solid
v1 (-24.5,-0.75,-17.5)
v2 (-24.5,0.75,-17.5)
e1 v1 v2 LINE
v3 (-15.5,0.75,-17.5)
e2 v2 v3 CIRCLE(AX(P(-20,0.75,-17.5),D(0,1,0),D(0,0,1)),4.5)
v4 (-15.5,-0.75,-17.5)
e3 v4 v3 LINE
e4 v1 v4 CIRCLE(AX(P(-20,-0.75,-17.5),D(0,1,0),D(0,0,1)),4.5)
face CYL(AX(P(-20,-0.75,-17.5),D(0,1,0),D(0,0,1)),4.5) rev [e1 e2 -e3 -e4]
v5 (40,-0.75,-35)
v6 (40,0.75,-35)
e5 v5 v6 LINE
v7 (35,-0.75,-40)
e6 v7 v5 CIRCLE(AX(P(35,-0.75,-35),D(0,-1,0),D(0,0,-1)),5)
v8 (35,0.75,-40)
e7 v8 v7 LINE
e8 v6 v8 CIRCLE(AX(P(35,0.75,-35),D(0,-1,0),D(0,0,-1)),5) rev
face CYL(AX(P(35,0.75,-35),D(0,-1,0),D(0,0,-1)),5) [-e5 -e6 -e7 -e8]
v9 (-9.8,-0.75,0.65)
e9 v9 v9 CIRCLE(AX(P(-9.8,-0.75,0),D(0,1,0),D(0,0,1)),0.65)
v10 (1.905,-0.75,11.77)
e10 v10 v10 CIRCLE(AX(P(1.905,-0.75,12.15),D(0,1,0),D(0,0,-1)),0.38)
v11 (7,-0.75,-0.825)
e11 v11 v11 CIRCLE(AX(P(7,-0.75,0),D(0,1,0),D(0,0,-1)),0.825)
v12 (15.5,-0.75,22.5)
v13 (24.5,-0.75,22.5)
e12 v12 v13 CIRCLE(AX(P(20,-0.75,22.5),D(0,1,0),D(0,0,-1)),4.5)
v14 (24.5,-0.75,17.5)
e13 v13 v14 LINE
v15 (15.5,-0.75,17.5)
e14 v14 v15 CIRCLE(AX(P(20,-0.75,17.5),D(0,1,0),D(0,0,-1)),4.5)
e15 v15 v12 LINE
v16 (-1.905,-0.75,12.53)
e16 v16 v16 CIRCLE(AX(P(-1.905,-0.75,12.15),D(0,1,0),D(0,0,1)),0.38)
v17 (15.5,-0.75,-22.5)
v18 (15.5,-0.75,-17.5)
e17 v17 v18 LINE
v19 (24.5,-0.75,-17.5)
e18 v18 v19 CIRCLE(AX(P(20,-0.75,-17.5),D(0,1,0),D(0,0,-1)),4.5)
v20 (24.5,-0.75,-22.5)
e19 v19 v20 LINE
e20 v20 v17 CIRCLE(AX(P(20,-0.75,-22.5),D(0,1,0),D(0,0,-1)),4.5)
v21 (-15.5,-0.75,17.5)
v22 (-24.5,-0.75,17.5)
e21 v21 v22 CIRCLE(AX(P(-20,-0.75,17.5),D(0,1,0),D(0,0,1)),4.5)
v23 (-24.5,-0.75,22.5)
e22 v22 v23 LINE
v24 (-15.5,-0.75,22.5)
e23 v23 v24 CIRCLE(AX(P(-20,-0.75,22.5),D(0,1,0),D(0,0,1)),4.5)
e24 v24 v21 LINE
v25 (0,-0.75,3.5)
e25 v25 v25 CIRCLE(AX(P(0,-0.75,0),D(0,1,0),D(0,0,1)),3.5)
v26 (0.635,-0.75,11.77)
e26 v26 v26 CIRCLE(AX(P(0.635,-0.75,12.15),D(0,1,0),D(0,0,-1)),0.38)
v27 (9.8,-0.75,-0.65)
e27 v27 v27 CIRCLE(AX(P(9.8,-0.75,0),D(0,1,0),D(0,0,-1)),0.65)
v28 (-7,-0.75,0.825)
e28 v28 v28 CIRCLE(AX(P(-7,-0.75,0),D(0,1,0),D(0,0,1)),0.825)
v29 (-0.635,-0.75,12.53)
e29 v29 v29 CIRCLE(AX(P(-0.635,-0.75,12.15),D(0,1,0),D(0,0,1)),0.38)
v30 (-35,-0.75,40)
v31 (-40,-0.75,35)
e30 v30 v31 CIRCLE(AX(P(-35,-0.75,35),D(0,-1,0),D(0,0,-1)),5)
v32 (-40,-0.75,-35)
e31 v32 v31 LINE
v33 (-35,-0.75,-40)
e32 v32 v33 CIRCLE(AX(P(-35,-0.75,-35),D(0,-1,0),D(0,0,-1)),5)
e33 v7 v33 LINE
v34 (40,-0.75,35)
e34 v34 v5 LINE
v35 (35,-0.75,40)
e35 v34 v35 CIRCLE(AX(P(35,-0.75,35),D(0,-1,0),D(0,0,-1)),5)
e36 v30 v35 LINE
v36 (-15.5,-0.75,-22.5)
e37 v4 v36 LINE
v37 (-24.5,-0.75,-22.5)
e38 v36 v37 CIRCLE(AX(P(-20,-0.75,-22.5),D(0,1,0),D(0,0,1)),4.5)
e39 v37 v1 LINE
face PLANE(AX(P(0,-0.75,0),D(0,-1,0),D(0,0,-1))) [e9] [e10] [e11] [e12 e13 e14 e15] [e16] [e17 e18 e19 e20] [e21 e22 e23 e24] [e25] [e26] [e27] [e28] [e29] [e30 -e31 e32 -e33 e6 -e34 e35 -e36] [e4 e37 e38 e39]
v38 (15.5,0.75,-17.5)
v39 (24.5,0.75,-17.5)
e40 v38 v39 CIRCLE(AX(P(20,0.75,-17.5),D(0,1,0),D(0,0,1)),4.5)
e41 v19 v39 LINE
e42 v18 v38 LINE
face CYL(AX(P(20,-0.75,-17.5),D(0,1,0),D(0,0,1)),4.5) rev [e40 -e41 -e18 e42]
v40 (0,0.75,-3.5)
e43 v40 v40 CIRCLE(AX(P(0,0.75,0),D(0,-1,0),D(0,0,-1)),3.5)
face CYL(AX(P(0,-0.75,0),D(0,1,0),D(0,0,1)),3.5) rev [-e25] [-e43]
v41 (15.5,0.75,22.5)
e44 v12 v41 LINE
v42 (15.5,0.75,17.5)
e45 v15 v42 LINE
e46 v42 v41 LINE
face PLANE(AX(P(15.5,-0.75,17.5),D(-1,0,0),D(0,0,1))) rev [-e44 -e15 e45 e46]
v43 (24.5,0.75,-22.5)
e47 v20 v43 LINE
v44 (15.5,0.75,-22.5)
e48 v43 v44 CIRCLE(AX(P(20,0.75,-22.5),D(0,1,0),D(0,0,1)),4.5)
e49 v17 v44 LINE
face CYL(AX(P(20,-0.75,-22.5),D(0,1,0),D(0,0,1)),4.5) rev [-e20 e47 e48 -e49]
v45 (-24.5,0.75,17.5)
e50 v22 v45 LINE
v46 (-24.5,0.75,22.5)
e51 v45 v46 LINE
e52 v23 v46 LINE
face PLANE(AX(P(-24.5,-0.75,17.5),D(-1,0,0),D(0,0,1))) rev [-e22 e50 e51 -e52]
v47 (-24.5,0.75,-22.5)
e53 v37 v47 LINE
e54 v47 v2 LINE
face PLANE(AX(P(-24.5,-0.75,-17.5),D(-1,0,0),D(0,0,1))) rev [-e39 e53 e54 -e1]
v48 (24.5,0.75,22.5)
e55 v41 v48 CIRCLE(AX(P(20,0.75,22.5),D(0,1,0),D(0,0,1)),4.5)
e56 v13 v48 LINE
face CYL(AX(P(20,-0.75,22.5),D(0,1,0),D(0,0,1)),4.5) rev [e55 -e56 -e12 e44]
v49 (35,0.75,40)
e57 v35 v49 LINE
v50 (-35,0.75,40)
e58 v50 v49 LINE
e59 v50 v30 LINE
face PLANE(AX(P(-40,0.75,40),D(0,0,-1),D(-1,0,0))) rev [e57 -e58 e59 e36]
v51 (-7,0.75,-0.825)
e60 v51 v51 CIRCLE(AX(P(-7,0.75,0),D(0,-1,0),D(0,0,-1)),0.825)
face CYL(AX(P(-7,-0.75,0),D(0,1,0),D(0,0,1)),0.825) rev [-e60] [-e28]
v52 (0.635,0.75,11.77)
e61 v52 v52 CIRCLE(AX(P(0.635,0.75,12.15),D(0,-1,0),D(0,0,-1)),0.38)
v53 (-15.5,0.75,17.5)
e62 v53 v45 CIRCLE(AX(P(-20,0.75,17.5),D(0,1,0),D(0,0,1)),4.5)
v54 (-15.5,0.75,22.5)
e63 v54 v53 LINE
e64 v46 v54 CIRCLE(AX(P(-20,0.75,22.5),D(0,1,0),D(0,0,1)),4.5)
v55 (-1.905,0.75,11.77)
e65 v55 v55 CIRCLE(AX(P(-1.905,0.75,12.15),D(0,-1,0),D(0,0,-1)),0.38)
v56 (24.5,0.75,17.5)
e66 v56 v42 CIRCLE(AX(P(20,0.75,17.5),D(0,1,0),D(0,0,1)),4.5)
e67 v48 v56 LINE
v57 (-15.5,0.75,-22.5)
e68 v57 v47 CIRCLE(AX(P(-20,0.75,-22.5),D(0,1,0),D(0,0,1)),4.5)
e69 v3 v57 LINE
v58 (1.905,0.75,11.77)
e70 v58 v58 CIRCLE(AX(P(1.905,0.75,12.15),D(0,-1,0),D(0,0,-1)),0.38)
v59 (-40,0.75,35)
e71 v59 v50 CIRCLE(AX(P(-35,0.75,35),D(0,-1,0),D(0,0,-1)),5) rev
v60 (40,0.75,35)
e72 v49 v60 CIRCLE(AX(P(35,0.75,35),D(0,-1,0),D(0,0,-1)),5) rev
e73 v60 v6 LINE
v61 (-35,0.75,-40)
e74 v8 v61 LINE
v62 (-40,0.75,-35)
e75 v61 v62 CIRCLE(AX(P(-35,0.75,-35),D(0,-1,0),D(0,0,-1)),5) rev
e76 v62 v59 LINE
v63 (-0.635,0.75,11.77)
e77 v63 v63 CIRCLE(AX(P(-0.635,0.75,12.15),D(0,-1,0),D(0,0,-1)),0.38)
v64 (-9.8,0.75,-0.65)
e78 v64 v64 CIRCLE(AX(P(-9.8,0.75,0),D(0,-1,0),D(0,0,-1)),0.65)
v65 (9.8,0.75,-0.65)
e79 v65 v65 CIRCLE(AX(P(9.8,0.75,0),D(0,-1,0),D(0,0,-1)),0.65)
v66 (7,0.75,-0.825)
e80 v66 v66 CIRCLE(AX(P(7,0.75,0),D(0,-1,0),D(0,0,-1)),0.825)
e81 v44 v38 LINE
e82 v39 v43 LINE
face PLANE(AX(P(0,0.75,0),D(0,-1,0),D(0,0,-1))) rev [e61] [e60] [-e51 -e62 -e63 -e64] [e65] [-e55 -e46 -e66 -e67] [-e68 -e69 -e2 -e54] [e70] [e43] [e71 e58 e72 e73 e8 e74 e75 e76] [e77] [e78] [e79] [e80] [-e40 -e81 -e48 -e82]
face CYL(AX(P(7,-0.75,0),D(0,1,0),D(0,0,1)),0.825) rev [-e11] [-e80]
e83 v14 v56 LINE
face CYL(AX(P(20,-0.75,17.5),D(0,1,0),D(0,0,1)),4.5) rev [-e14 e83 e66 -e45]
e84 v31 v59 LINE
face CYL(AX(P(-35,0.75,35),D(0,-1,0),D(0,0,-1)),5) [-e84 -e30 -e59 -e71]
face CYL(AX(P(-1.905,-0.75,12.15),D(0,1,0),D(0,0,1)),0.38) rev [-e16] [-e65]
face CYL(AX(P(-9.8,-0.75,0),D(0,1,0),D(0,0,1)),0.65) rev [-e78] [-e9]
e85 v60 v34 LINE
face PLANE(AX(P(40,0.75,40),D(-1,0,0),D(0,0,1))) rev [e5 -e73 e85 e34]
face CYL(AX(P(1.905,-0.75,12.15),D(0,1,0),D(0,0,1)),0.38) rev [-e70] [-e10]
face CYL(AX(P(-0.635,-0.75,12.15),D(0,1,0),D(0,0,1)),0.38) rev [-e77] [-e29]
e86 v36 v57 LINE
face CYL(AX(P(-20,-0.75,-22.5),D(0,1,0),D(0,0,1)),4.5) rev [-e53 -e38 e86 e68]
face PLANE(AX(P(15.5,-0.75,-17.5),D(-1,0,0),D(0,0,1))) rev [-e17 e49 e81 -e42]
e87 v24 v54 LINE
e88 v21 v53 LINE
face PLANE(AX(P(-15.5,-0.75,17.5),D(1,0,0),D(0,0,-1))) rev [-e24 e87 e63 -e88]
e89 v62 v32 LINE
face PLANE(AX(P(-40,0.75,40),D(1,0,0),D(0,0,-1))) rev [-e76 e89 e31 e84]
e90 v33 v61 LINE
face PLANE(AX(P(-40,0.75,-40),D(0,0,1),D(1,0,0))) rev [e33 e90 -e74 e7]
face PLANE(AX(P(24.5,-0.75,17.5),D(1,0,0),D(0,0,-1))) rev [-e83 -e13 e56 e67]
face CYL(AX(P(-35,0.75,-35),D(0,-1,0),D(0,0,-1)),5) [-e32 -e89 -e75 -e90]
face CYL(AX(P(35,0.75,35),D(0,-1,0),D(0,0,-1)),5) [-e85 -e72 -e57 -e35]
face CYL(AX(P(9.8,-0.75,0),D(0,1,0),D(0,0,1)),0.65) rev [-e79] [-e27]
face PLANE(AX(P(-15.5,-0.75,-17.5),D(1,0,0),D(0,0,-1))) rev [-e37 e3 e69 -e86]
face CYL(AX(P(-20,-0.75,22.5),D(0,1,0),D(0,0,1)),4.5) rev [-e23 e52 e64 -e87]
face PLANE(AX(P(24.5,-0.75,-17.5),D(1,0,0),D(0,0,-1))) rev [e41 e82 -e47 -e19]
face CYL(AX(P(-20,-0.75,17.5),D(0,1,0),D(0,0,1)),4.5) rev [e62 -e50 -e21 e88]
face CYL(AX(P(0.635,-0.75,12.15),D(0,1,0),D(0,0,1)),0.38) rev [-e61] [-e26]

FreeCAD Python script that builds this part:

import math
import FreeCAD as App
import Part
import Sketcher

V = App.Vector


def edges_at(feature, points):
    """Names of the edges that pass closest to the given points."""
    edges = feature.Shape.Edges
    near = lambda p: min(range(len(edges)), key=lambda i: edges[i].distToShape(Part.Vertex(*p))[0])
    return sorted({f"Edge{near(p) + 1}" for p in points})

doc = App.newDocument("Part")
body = doc.addObject("PartDesign::Body", "Body")

sketch1 = body.newObject("Sketcher::SketchObject", "Sketch")
sketch1.AttachmentSupport = (doc.getObject("XZ_Plane"), [""])
sketch1.MapMode = "FlatFace"
sketch1.addGeometry([
    Part.LineSegment(V(-40, -40, 0), V(-40, 40, 0)),
    Part.LineSegment(V(-40, 40, 0), V(40, 40, 0)),
    Part.LineSegment(V(40, 40, 0), V(40, -40, 0)),
    Part.LineSegment(V(40, -40, 0), V(-40, -40, 0)),
], False)
sketch1.addConstraint([
    Sketcher.Constraint("Coincident", 0, 2, 1, 1),
    Sketcher.Constraint("Coincident", 1, 2, 2, 1),
    Sketcher.Constraint("Coincident", 2, 2, 3, 1),
    Sketcher.Constraint("Coincident", 3, 2, 0, 1),
    Sketcher.Constraint("Vertical", 0),
    Sketcher.Constraint("Horizontal", 1),
    Sketcher.Constraint("Vertical", 2),
    Sketcher.Constraint("Horizontal", 3),
    Sketcher.Constraint("Symmetric", 0, 2, 2, 2, -1, 1),
    Sketcher.Constraint("Equal", 3, 0),
    Sketcher.Constraint("DistanceX", 1, 1, 1, 2, 80.0),
])
pad1 = body.newObject("PartDesign::Pad", "Pad")
pad1.Profile = sketch1
pad1.Length = 1.5
pad1.Midplane = True
doc.recompute()

fillet = body.newObject("PartDesign::Fillet", "Fillet")
fillet.Base = (pad1, edges_at(pad1, [(-40, 0, 40)]))
fillet.Radius = 5
doc.recompute()

fillet2 = body.newObject("PartDesign::Fillet", "Fillet001")
fillet2.Base = (fillet, edges_at(fillet, [(-40, 0, -40)]))
fillet2.Radius = 5
doc.recompute()

fillet3 = body.newObject("PartDesign::Fillet", "Fillet002")
fillet3.Base = (fillet2, edges_at(fillet2, [(40, 0, -40)]))
fillet3.Radius = 5
doc.recompute()

fillet4 = body.newObject("PartDesign::Fillet", "Fillet003")
fillet4.Base = (fillet3, edges_at(fillet3, [(40, 0, 40)]))
fillet4.Radius = 5

sketch2 = body.newObject("Sketcher::SketchObject", "Sketch001")
sketch2.AttachmentSupport = (doc.getObject("XZ_Plane"), [""])
sketch2.MapMode = "FlatFace"
sketch2.AttachmentOffset = App.Placement(V(0, 0, -0.75), App.Rotation())
sketch2.addGeometry([
    Part.LineSegment(V(-24.5, -22.5, 0), V(-24.5, -17.5, 0)),
    Part.ArcOfCircle(Part.Circle(V(-20, -17.5, 0), V(0, 0, 1), 4.5), math.radians(0), math.radians(180)),
    Part.LineSegment(V(-15.5, -17.5, 0), V(-15.5, -22.5, 0)),
    Part.ArcOfCircle(Part.Circle(V(-20, -22.5, 0), V(0, 0, 1), 4.5), math.radians(180), math.radians(360)),
    Part.LineSegment(V(-15.5, 22.5, 0), V(-15.5, 17.5, 0)),
    Part.ArcOfCircle(Part.Circle(V(-20, 17.5, 0), V(0, 0, 1), 4.5), math.radians(180), math.radians(360)),
    Part.LineSegment(V(-24.5, 17.5, 0), V(-24.5, 22.5, 0)),
    Part.ArcOfCircle(Part.Circle(V(-20, 22.5, 0), V(0, 0, 1), 4.5), math.radians(0), math.radians(180)),
    Part.LineSegment(V(15.5, 17.5, 0), V(15.5, 22.5, 0)),
    Part.ArcOfCircle(Part.Circle(V(20, 22.5, 0), V(0, 0, 1), 4.5), math.radians(0), math.radians(180)),
    Part.LineSegment(V(24.5, 22.5, 0), V(24.5, 17.5, 0)),
    Part.ArcOfCircle(Part.Circle(V(20, 17.5, 0), V(0, 0, 1), 4.5), math.radians(180), math.radians(360)),
    Part.LineSegment(V(24.5, -17.5, 0), V(24.5, -22.5, 0)),
    Part.ArcOfCircle(Part.Circle(V(20, -22.5, 0), V(0, 0, 1), 4.5), math.radians(180), math.radians(360)),
    Part.LineSegment(V(15.5, -22.5, 0), V(15.5, -17.5, 0)),
    Part.ArcOfCircle(Part.Circle(V(20, -17.5, 0), V(0, 0, 1), 4.5), math.radians(0), math.radians(180)),
], False)
sketch2.addConstraint([
    Sketcher.Constraint("Tangent", 0, 2, 1, 2),
    Sketcher.Constraint("Tangent", 1, 1, 2, 1),
    Sketcher.Constraint("Tangent", 2, 2, 3, 2),
    Sketcher.Constraint("Tangent", 3, 1, 0, 1),
    Sketcher.Constraint("Tangent", 4, 2, 5, 2),
    Sketcher.Constraint("Tangent", 5, 1, 6, 1),
    Sketcher.Constraint("Tangent", 6, 2, 7, 2),
    Sketcher.Constraint("Tangent", 7, 1, 4, 1),
    Sketcher.Constraint("Tangent", 8, 2, 9, 2),
    Sketcher.Constraint("Tangent", 9, 1, 10, 1),
    Sketcher.Constraint("Tangent", 10, 2, 11, 2),
    Sketcher.Constraint("Tangent", 11, 1, 8, 1),
    Sketcher.Constraint("Tangent", 12, 2, 13, 2),
    Sketcher.Constraint("Tangent", 13, 1, 14, 1),
    Sketcher.Constraint("Tangent", 14, 2, 15, 2),
    Sketcher.Constraint("Tangent", 15, 1, 12, 1),
    Sketcher.Constraint("Vertical", 0),
    Sketcher.Constraint("Vertical", 2),
    Sketcher.Constraint("Vertical", 4),
    Sketcher.Constraint("Vertical", 6),
    Sketcher.Constraint("Vertical", 8),
    Sketcher.Constraint("Vertical", 10),
    Sketcher.Constraint("Vertical", 12),
    Sketcher.Constraint("Vertical", 14),
    Sketcher.Constraint("Equal", 3, 5),
    Sketcher.Constraint("Equal", 7, 9),
    Sketcher.Constraint("Equal", 11, 13),
    Sketcher.Constraint("Symmetric", 3, 3, 9, 3, -1, 1),
    Sketcher.Constraint("Symmetric", 7, 3, 13, 3, -1, 1),
    Sketcher.Constraint("Symmetric", 7, 3, 9, 3, -2),
    Sketcher.Constraint("Horizontal", 5, 3, 11, 3),
    Sketcher.Constraint("Horizontal", 1, 3, 15, 3),
    Sketcher.Constraint("Equal", 2, 4),
    Sketcher.Constraint("Radius", 1, 4.5),
    Sketcher.Constraint("DistanceY", 0, 1, 0, 2, 5.0),
    Sketcher.Constraint("DistanceX", 1, 3, -1, 1, 20.0),
    Sketcher.Constraint("DistanceY", 1, 3, 5, 3, 35.0),
])
pocket1 = body.newObject("PartDesign::Pocket", "Pocket")
pocket1.Profile = sketch2
pocket1.Type = "ThroughAll"
pocket1.Midplane = True

sketch3 = body.newObject("Sketcher::SketchObject", "Sketch002")
sketch3.AttachmentSupport = (doc.getObject("XZ_Plane"), [""])
sketch3.MapMode = "FlatFace"
sketch3.AttachmentOffset = App.Placement(V(0, 0, -0.75), App.Rotation())
sketch3.addGeometry(Part.Circle(V(0, 0, 0), V(0, 0, 1), 3.5), False)
sketch3.addConstraint([
    Sketcher.Constraint("Coincident", 0, 3, -1, 1),
    Sketcher.Constraint("Diameter", 0, 7.0),
])
pocket2 = body.newObject("PartDesign::Pocket", "Pocket001")
pocket2.Profile = sketch3
pocket2.Type = "ThroughAll"
pocket2.Midplane = True

sketch4 = body.newObject("Sketcher::SketchObject", "Sketch003")
sketch4.AttachmentSupport = (doc.getObject("XZ_Plane"), [""])
sketch4.MapMode = "FlatFace"
sketch4.AttachmentOffset = App.Placement(V(0, 0, -0.75), App.Rotation())
sketch4.addGeometry([
    Part.Circle(V(-0.635, 12.15, 0), V(0, 0, 1), 0.38),
    Part.Circle(V(-1.905, 12.15, 0), V(0, 0, 1), 0.38),
    Part.Circle(V(-9.8, 0, 0), V(0, 0, 1), 0.65),
    Part.Circle(V(-7, 0, 0), V(0, 0, 1), 0.825),
    Part.Circle(V(7, 0, 0), V(0, 0, 1), 0.825),
    Part.Circle(V(9.8, 0, 0), V(0, 0, 1), 0.65),
    Part.Circle(V(0.635, 12.15, 0), V(0, 0, 1), 0.38),
    Part.Circle(V(1.905, 12.15, 0), V(0, 0, 1), 0.38),
], False)
sketch4.addConstraint([
    Sketcher.Constraint("Equal", 0, 1),
    Sketcher.Constraint("Equal", 3, 4),
    Sketcher.Constraint("Equal", 2, 5),
    Sketcher.Constraint("Equal", 1, 6),
    Sketcher.Constraint("Equal", 6, 7),
    Sketcher.Constraint("Symmetric", 3, 3, 4, 3, -1, 1),
    Sketcher.Constraint("Symmetric", 2, 3, 5, 3, -1, 1),
    Sketcher.Constraint("Symmetric", 0, 3, 6, 3, -2),
    Sketcher.Constraint("Symmetric", 1, 3, 7, 3, -2),
    Sketcher.Constraint("PointOnObject", 2, 3, -1),
    Sketcher.Constraint("PointOnObject", 3, 3, -1),
    Sketcher.Constraint("Horizontal", 0, 3, 1, 3),
    Sketcher.Constraint("Diameter", 2, 1.3),
    Sketcher.Constraint("Diameter", 0, 0.76),
    Sketcher.Constraint("Diameter", 3, 1.65),
    Sketcher.Constraint("DistanceX", 3, 3, -1, 1, 7.0),
    Sketcher.Constraint("DistanceX", 2, 3, -1, 1, 9.8),
    Sketcher.Constraint("DistanceY", -1, 1, 0, 3, 12.15),
    Sketcher.Constraint("DistanceX", 1, 3, 0, 3, 1.27),
    Sketcher.Constraint("DistanceX", 0, 3, 6, 3, 1.27),
])
pocket3 = body.newObject("PartDesign::Pocket", "Pocket002")
pocket3.Profile = sketch4
pocket3.Type = "ThroughAll"
pocket3.Midplane = True

doc.recompute()
